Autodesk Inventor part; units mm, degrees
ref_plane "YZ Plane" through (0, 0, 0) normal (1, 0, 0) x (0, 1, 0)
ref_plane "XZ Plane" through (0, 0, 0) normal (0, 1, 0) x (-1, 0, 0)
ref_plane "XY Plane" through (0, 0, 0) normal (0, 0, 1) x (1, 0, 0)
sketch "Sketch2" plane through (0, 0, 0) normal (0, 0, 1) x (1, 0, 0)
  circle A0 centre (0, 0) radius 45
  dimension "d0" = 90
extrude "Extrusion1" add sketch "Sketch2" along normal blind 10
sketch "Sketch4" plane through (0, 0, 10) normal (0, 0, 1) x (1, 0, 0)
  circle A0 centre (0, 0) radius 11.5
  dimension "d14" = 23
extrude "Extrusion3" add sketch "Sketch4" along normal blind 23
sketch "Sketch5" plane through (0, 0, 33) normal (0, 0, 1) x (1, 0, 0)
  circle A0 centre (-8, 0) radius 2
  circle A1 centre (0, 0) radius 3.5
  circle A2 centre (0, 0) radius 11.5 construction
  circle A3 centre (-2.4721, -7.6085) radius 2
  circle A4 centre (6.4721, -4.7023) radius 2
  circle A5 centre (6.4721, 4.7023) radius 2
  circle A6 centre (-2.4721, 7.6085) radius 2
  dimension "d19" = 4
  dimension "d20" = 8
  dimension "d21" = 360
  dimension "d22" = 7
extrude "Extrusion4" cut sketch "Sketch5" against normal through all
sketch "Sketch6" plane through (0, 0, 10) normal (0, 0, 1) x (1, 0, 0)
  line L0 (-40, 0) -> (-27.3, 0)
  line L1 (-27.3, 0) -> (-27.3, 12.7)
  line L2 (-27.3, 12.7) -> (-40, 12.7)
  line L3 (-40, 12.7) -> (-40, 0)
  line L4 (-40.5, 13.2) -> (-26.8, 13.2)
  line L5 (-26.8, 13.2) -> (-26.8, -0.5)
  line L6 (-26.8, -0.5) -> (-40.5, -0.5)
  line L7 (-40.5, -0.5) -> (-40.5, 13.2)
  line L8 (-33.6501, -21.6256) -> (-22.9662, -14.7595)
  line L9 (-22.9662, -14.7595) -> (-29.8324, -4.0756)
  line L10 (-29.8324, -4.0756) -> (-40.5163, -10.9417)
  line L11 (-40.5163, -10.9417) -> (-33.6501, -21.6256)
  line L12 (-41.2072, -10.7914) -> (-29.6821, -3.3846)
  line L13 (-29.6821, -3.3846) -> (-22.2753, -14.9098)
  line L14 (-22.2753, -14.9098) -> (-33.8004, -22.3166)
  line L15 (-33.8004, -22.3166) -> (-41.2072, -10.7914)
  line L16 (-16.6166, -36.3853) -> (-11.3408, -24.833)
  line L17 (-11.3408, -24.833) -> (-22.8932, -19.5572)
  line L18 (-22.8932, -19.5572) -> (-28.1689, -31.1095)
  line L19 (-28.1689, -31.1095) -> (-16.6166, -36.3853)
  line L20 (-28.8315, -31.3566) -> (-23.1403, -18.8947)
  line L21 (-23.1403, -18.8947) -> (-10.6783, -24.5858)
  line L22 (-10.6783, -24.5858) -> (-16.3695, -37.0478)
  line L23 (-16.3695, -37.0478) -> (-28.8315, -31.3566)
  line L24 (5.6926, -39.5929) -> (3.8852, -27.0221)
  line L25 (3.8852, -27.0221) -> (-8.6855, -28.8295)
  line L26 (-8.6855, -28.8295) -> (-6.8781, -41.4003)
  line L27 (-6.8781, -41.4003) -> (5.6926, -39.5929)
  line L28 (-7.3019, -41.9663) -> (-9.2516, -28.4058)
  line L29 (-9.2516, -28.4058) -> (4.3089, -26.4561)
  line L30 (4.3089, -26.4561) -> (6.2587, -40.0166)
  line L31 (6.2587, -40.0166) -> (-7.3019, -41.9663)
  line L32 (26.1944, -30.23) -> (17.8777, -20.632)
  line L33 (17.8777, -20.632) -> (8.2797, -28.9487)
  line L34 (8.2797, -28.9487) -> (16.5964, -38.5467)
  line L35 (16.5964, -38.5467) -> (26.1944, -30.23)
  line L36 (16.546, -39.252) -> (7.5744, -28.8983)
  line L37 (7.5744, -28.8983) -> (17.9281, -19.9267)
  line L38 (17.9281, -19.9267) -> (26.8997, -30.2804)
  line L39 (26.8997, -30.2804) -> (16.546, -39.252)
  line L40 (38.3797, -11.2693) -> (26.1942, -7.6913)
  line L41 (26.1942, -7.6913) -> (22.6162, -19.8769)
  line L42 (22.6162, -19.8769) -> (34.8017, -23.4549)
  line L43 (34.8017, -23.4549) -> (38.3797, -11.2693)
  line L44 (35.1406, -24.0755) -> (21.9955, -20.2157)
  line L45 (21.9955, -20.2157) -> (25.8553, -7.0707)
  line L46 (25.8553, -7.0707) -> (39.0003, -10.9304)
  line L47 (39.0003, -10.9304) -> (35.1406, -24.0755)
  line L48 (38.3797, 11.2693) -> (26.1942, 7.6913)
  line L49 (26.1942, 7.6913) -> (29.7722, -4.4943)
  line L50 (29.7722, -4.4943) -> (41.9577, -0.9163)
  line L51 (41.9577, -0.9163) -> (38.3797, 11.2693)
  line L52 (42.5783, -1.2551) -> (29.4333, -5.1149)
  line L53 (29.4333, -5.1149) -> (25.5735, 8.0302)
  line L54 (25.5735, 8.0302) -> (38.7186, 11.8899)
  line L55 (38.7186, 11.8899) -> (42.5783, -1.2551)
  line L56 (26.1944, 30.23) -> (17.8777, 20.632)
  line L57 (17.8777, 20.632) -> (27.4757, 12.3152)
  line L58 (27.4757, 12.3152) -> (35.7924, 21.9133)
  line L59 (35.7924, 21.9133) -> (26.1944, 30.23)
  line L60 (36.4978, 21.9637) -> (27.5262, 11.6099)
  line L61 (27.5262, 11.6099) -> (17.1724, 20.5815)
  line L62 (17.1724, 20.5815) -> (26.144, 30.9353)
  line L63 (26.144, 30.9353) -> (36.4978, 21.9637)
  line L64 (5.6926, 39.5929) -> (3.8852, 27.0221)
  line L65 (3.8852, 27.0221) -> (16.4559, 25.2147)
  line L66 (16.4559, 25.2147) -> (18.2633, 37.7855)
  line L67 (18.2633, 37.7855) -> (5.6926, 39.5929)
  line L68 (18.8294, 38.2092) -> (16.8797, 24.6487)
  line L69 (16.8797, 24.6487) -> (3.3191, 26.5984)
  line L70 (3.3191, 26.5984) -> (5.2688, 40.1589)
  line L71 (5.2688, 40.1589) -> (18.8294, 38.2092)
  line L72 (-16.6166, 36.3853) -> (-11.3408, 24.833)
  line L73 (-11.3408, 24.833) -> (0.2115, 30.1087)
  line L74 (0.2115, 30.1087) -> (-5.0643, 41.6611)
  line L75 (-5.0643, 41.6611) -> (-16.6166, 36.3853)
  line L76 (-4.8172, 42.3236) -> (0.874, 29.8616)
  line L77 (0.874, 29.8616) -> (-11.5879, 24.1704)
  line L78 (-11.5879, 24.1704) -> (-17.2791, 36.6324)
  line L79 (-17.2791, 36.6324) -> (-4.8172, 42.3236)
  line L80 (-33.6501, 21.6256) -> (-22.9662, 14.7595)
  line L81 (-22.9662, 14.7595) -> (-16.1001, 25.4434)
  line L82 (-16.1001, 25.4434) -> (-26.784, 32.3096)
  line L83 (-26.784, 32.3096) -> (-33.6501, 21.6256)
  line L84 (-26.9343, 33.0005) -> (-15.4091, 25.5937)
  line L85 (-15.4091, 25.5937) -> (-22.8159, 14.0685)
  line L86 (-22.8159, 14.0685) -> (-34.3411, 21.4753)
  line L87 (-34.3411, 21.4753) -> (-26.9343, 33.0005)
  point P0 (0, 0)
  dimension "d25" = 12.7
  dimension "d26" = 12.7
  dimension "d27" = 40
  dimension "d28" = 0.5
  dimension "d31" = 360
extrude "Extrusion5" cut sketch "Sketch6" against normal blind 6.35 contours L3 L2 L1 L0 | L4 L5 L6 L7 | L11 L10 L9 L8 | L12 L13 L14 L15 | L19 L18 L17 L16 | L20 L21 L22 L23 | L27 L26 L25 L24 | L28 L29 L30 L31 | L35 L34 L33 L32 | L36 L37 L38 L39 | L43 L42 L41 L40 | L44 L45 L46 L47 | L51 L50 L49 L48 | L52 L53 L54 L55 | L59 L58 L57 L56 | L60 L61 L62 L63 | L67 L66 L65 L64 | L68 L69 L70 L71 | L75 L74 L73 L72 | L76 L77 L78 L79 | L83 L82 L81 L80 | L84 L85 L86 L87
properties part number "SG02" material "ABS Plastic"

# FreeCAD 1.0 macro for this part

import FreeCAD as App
import Part
import Sketcher
Q = App.Units.Quantity

doc = App.newDocument("Part")
body = doc.addObject("PartDesign::Body", "Body")

sketch1 = body.newObject("Sketcher::SketchObject", "Sketch")
sketch1.AttachmentSupport = (doc.getObject("XY_Plane"), [""])
sketch1.MapMode = "FlatFace"
sketch1.addGeometry(Part.Circle(App.Vector(0, 0, 0), App.Vector(0, 0, 1), 45), False)
sketch1.addConstraint(Sketcher.Constraint("Coincident", 0, 3, -1, 1))
sketch1.addConstraint(Sketcher.Constraint("Diameter", 0, Q("90 mm")))
pad1 = body.newObject("PartDesign::Pad", "Pad")
pad1.Profile = sketch1
pad1.Length = 10

sketch2 = body.newObject("Sketcher::SketchObject", "Sketch001")
sketch2.AttachmentSupport = (doc.getObject("XY_Plane"), [""])
sketch2.MapMode = "FlatFace"
sketch2.AttachmentOffset = App.Placement(App.Vector(0, 0, 10), App.Rotation())
sketch2.addGeometry(Part.Circle(App.Vector(0, 0, 0), App.Vector(0, 0, 1), 11.5), False)
sketch2.addConstraint(Sketcher.Constraint("Coincident", 0, 3, -1, 1))
sketch2.addConstraint(Sketcher.Constraint("Diameter", 0, Q("23 mm")))
pad2 = body.newObject("PartDesign::Pad", "Pad001")
pad2.Profile = sketch2
pad2.Length = 23

sketch3 = body.newObject("Sketcher::SketchObject", "Sketch002")
sketch3.AttachmentSupport = (doc.getObject("XY_Plane"), [""])
sketch3.MapMode = "FlatFace"
sketch3.AttachmentOffset = App.Placement(App.Vector(0, 0, 33), App.Rotation())
sketch3.addGeometry(Part.Circle(App.Vector(-8, 0, 0), App.Vector(0, 0, 1), 2), False)
sketch3.addGeometry(Part.Circle(App.Vector(0, 0, 0), App.Vector(0, 0, 1), 3.5), False)
sketch3.addGeometry(Part.Circle(App.Vector(-2.4721, -7.6085, 0), App.Vector(0, 0, 1), 2), False)
sketch3.addGeometry(Part.Circle(App.Vector(6.4721, -4.7023, 0), App.Vector(0, 0, 1), 2), False)
sketch3.addGeometry(Part.Circle(App.Vector(6.4721, 4.7023, 0), App.Vector(0, 0, 1), 2), False)
sketch3.addGeometry(Part.Circle(App.Vector(-2.4721, 7.6085, 0), App.Vector(0, 0, 1), 2), False)
sketch3.addConstraint(Sketcher.Constraint("Coincident", 1, 3, -1, 1))
sketch3.addConstraint(Sketcher.Constraint("Equal", 0, 2))
sketch3.addConstraint(Sketcher.Constraint("Equal", 2, 3))
sketch3.addConstraint(Sketcher.Constraint("Equal", 3, 4))
sketch3.addConstraint(Sketcher.Constraint("Equal", 4, 5))
sketch3.addConstraint(Sketcher.Constraint("Symmetric", 3, 3, 4, 3, -1))
sketch3.addConstraint(Sketcher.Constraint("Symmetric", 2, 3, 5, 3, -1))
sketch3.addConstraint(Sketcher.Constraint("PointOnObject", 0, 3, -1))
sketch3.addConstraint(Sketcher.Constraint("Diameter", 0, Q("4 mm")))
sketch3.addConstraint(Sketcher.Constraint("Diameter", 1, Q("7 mm")))
sketch3.addConstraint(Sketcher.Constraint("DistanceX", 0, 3, -1, 1, Q("8 mm")))
sketch3.addConstraint(Sketcher.Constraint("DistanceX", 2, 3, -1, 1, Q("2.472 mm")))
sketch3.addConstraint(Sketcher.Constraint("DistanceX", -1, 1, 3, 3, Q("6.472 mm")))
sketch3.addConstraint(Sketcher.Constraint("DistanceY", 2, 3, 5, 3, Q("15.217 mm")))
sketch3.addConstraint(Sketcher.Constraint("DistanceY", 3, 3, -1, 1, Q("4.7023 mm")))
pocket1 = body.newObject("PartDesign::Pocket", "Pocket")
pocket1.Profile = sketch3
pocket1.Type = "ThroughAll"

sketch4 = body.newObject("Sketcher::SketchObject", "Sketch003")
sketch4.AttachmentSupport = (doc.getObject("XY_Plane"), [""])
sketch4.MapMode = "FlatFace"
sketch4.AttachmentOffset = App.Placement(App.Vector(0, 0, 10), App.Rotation())
sketch4.addGeometry(Part.LineSegment(App.Vector(-26.8, 13.2, 0), App.Vector(-40.5, 13.2, 0)), False)
sketch4.addGeometry(Part.LineSegment(App.Vector(-40.5, 13.2, 0), App.Vector(-40.5, -0.5, 0)), False)
sketch4.addGeometry(Part.LineSegment(App.Vector(-40.5, -0.5, 0), App.Vector(-26.8, -0.5, 0)), False)
sketch4.addGeometry(Part.LineSegment(App.Vector(-26.8, -0.5, 0), App.Vector(-26.8, 13.2, 0)), False)
sketch4.addGeometry(Part.LineSegment(App.Vector(-29.6821, -3.3846, 0), App.Vector(-41.2072, -10.7914, 0)), False)
sketch4.addGeometry(Part.LineSegment(App.Vector(-41.2072, -10.7914, 0), App.Vector(-33.8004, -22.3166, 0)), False)
sketch4.addGeometry(Part.LineSegment(App.Vector(-33.8004, -22.3166, 0), App.Vector(-22.2753, -14.9098, 0)), False)
sketch4.addGeometry(Part.LineSegment(App.Vector(-22.2753, -14.9098, 0), App.Vector(-29.6821, -3.3846, 0)), False)
sketch4.addGeometry(Part.LineSegment(App.Vector(-23.1403, -18.8947, 0), App.Vector(-28.8315, -31.3566, 0)), False)
sketch4.addGeometry(Part.LineSegment(App.Vector(-28.8315, -31.3566, 0), App.Vector(-16.3695, -37.0478, 0)), False)
sketch4.addGeometry(Part.LineSegment(App.Vector(-16.3695, -37.0478, 0), App.Vector(-10.6783, -24.5858, 0)), False)
sketch4.addGeometry(Part.LineSegment(App.Vector(-10.6783, -24.5858, 0), App.Vector(-23.1403, -18.8947, 0)), False)
sketch4.addGeometry(Part.LineSegment(App.Vector(-9.2516, -28.4058, 0), App.Vector(-7.3019, -41.9663, 0)), False)
sketch4.addGeometry(Part.LineSegment(App.Vector(-7.3019, -41.9663, 0), App.Vector(6.2587, -40.0166, 0)), False)
sketch4.addGeometry(Part.LineSegment(App.Vector(6.2587, -40.0166, 0), App.Vector(4.3089, -26.4561, 0)), False)
sketch4.addGeometry(Part.LineSegment(App.Vector(4.3089, -26.4561, 0), App.Vector(-9.2516, -28.4058, 0)), False)
sketch4.addGeometry(Part.LineSegment(App.Vector(7.5744, -28.8983, 0), App.Vector(16.546, -39.252, 0)), False)
sketch4.addGeometry(Part.LineSegment(App.Vector(16.546, -39.252, 0), App.Vector(26.8997, -30.2804, 0)), False)
sketch4.addGeometry(Part.LineSegment(App.Vector(26.8997, -30.2804, 0), App.Vector(17.9281, -19.9267, 0)), False)
sketch4.addGeometry(Part.LineSegment(App.Vector(17.9281, -19.9267, 0), App.Vector(7.5744, -28.8983, 0)), False)
sketch4.addGeometry(Part.LineSegment(App.Vector(21.9955, -20.2157, 0), App.Vector(35.1406, -24.0755, 0)), False)
sketch4.addGeometry(Part.LineSegment(App.Vector(35.1406, -24.0755, 0), App.Vector(39.0003, -10.9304, 0)), False)
sketch4.addGeometry(Part.LineSegment(App.Vector(39.0003, -10.9304, 0), App.Vector(25.8553, -7.0707, 0)), False)
sketch4.addGeometry(Part.LineSegment(App.Vector(25.8553, -7.0707, 0), App.Vector(21.9955, -20.2157, 0)), False)
sketch4.addGeometry(Part.LineSegment(App.Vector(29.4333, -5.1149, 0), App.Vector(42.5783, -1.2551, 0)), False)
sketch4.addGeometry(Part.LineSegment(App.Vector(42.5783, -1.2551, 0), App.Vector(38.7186, 11.8899, 0)), False)
sketch4.addGeometry(Part.LineSegment(App.Vector(38.7186, 11.8899, 0), App.Vector(25.5735, 8.0302, 0)), False)
sketch4.addGeometry(Part.LineSegment(App.Vector(25.5735, 8.0302, 0), App.Vector(29.4333, -5.1149, 0)), False)
sketch4.addGeometry(Part.LineSegment(App.Vector(27.5262, 11.6099, 0), App.Vector(36.4978, 21.9637, 0)), False)
sketch4.addGeometry(Part.LineSegment(App.Vector(36.4978, 21.9637, 0), App.Vector(26.144, 30.9353, 0)), False)
sketch4.addGeometry(Part.LineSegment(App.Vector(26.144, 30.9353, 0), App.Vector(17.1724, 20.5815, 0)), False)
sketch4.addGeometry(Part.LineSegment(App.Vector(17.1724, 20.5815, 0), App.Vector(27.5262, 11.6099, 0)), False)
sketch4.addGeometry(Part.LineSegment(App.Vector(16.8797, 24.6487, 0), App.Vector(18.8294, 38.2092, 0)), False)
sketch4.addGeometry(Part.LineSegment(App.Vector(18.8294, 38.2092, 0), App.Vector(5.2688, 40.1589, 0)), False)
sketch4.addGeometry(Part.LineSegment(App.Vector(5.2688, 40.1589, 0), App.Vector(3.3191, 26.5984, 0)), False)
sketch4.addGeometry(Part.LineSegment(App.Vector(3.3191, 26.5984, 0), App.Vector(16.8797, 24.6487, 0)), False)
sketch4.addGeometry(Part.LineSegment(App.Vector(0.874, 29.8616, 0), App.Vector(-4.8172, 42.3236, 0)), False)
sketch4.addGeometry(Part.LineSegment(App.Vector(-4.8172, 42.3236, 0), App.Vector(-17.2791, 36.6324, 0)), False)
sketch4.addGeometry(Part.LineSegment(App.Vector(-17.2791, 36.6324, 0), App.Vector(-11.5879, 24.1704, 0)), False)
sketch4.addGeometry(Part.LineSegment(App.Vector(-11.5879, 24.1704, 0), App.Vector(0.874, 29.8616, 0)), False)
sketch4.addGeometry(Part.LineSegment(App.Vector(-15.4091, 25.5937, 0), App.Vector(-26.9343, 33.0005, 0)), False)
sketch4.addGeometry(Part.LineSegment(App.Vector(-26.9343, 33.0005, 0), App.Vector(-34.3411, 21.4753, 0)), False)
sketch4.addGeometry(Part.LineSegment(App.Vector(-34.3411, 21.4753, 0), App.Vector(-22.8159, 14.0685, 0)), False)
sketch4.addGeometry(Part.LineSegment(App.Vector(-22.8159, 14.0685, 0), App.Vector(-15.4091, 25.5937, 0)), False)
sketch4.addConstraint(Sketcher.Constraint("Coincident", 0, 2, 1, 1))
sketch4.addConstraint(Sketcher.Constraint("Coincident", 1, 2, 2, 1))
sketch4.addConstraint(Sketcher.Constraint("Coincident", 2, 2, 3, 1))
sketch4.addConstraint(Sketcher.Constraint("Coincident", 3, 2, 0, 1))
sketch4.addConstraint(Sketcher.Constraint("Coincident", 4, 2, 5, 1))
sketch4.addConstraint(Sketcher.Constraint("Coincident", 5, 2, 6, 1))
sketch4.addConstraint(Sketcher.Constraint("Coincident", 6, 2, 7, 1))
sketch4.addConstraint(Sketcher.Constraint("Coincident", 7, 2, 4, 1))
sketch4.addConstraint(Sketcher.Constraint("Coincident", 8, 2, 9, 1))
sketch4.addConstraint(Sketcher.Constraint("Coincident", 9, 2, 10, 1))
sketch4.addConstraint(Sketcher.Constraint("Coincident", 10, 2, 11, 1))
sketch4.addConstraint(Sketcher.Constraint("Coincident", 11, 2, 8, 1))
sketch4.addConstraint(Sketcher.Constraint("Coincident", 12, 2, 13, 1))
sketch4.addConstraint(Sketcher.Constraint("Coincident", 13, 2, 14, 1))
sketch4.addConstraint(Sketcher.Constraint("Coincident", 14, 2, 15, 1))
sketch4.addConstraint(Sketcher.Constraint("Coincident", 15, 2, 12, 1))
sketch4.addConstraint(Sketcher.Constraint("Coincident", 16, 2, 17, 1))
sketch4.addConstraint(Sketcher.Constraint("Coincident", 17, 2, 18, 1))
sketch4.addConstraint(Sketcher.Constraint("Coincident", 18, 2, 19, 1))
sketch4.addConstraint(Sketcher.Constraint("Coincident", 19, 2, 16, 1))
sketch4.addConstraint(Sketcher.Constraint("Coincident", 20, 2, 21, 1))
sketch4.addConstraint(Sketcher.Constraint("Coincident", 21, 2, 22, 1))
sketch4.addConstraint(Sketcher.Constraint("Coincident", 22, 2, 23, 1))
sketch4.addConstraint(Sketcher.Constraint("Coincident", 23, 2, 20, 1))
sketch4.addConstraint(Sketcher.Constraint("Coincident", 24, 2, 25, 1))
sketch4.addConstraint(Sketcher.Constraint("Coincident", 25, 2, 26, 1))
sketch4.addConstraint(Sketcher.Constraint("Coincident", 26, 2, 27, 1))
sketch4.addConstraint(Sketcher.Constraint("Coincident", 27, 2, 24, 1))
sketch4.addConstraint(Sketcher.Constraint("Coincident", 28, 2, 29, 1))
sketch4.addConstraint(Sketcher.Constraint("Coincident", 29, 2, 30, 1))
sketch4.addConstraint(Sketcher.Constraint("Coincident", 30, 2, 31, 1))
sketch4.addConstraint(Sketcher.Constraint("Coincident", 31, 2, 28, 1))
sketch4.addConstraint(Sketcher.Constraint("Coincident", 32, 2, 33, 1))
sketch4.addConstraint(Sketcher.Constraint("Coincident", 33, 2, 34, 1))
sketch4.addConstraint(Sketcher.Constraint("Coincident", 34, 2, 35, 1))
sketch4.addConstraint(Sketcher.Constraint("Coincident", 35, 2, 32, 1))
sketch4.addConstraint(Sketcher.Constraint("Coincident", 36, 2, 37, 1))
sketch4.addConstraint(Sketcher.Constraint("Coincident", 37, 2, 38, 1))
sketch4.addConstraint(Sketcher.Constraint("Coincident", 38, 2, 39, 1))
sketch4.addConstraint(Sketcher.Constraint("Coincident", 39, 2, 36, 1))
sketch4.addConstraint(Sketcher.Constraint("Coincident", 40, 2, 41, 1))
sketch4.addConstraint(Sketcher.Constraint("Coincident", 41, 2, 42, 1))
sketch4.addConstraint(Sketcher.Constraint("Coincident", 42, 2, 43, 1))
sketch4.addConstraint(Sketcher.Constraint("Coincident", 43, 2, 40, 1))
sketch4.addConstraint(Sketcher.Constraint("Horizontal", 0))
sketch4.addConstraint(Sketcher.Constraint("Vertical", 1))
sketch4.addConstraint(Sketcher.Constraint("Horizontal", 2))
sketch4.addConstraint(Sketcher.Constraint("Vertical", 3))
sketch4.addConstraint(Sketcher.Constraint("Perpendicular", 4, 5))
sketch4.addConstraint(Sketcher.Constraint("Perpendicular", 5, 6))
sketch4.addConstraint(Sketcher.Constraint("Perpendicular", 6, 7))
sketch4.addConstraint(Sketcher.Constraint("Perpendicular", 8, 9))
sketch4.addConstraint(Sketcher.Constraint("Perpendicular", 9, 10))
sketch4.addConstraint(Sketcher.Constraint("Perpendicular", 10, 11))
sketch4.addConstraint(Sketcher.Constraint("Perpendicular", 12, 13))
sketch4.addConstraint(Sketcher.Constraint("Perpendicular", 13, 14))
sketch4.addConstraint(Sketcher.Constraint("Perpendicular", 14, 15))
sketch4.addConstraint(Sketcher.Constraint("Perpendicular", 16, 17))
sketch4.addConstraint(Sketcher.Constraint("Perpendicular", 17, 18))
sketch4.addConstraint(Sketcher.Constraint("Perpendicular", 18, 19))
sketch4.addConstraint(Sketcher.Constraint("Perpendicular", 20, 21))
sketch4.addConstraint(Sketcher.Constraint("Perpendicular", 21, 22))
sketch4.addConstraint(Sketcher.Constraint("Perpendicular", 22, 23))
sketch4.addConstraint(Sketcher.Constraint("Perpendicular", 24, 25))
sketch4.addConstraint(Sketcher.Constraint("Perpendicular", 25, 26))
sketch4.addConstraint(Sketcher.Constraint("Perpendicular", 26, 27))
sketch4.addConstraint(Sketcher.Constraint("Perpendicular", 28, 29))
sketch4.addConstraint(Sketcher.Constraint("Perpendicular", 29, 30))
sketch4.addConstraint(Sketcher.Constraint("Perpendicular", 30, 31))
sketch4.addConstraint(Sketcher.Constraint("Perpendicular", 32, 33))
sketch4.addConstraint(Sketcher.Constraint("Perpendicular", 33, 34))
sketch4.addConstraint(Sketcher.Constraint("Perpendicular", 34, 35))
sketch4.addConstraint(Sketcher.Constraint("Perpendicular", 36, 37))
sketch4.addConstraint(Sketcher.Constraint("Perpendicular", 37, 38))
sketch4.addConstraint(Sketcher.Constraint("Perpendicular", 38, 39))
sketch4.addConstraint(Sketcher.Constraint("Perpendicular", 40, 41))
sketch4.addConstraint(Sketcher.Constraint("Perpendicular", 41, 42))
sketch4.addConstraint(Sketcher.Constraint("Perpendicular", 42, 43))
sketch4.addConstraint(Sketcher.Constraint("Equal", 2, 1))
sketch4.addConstraint(Sketcher.Constraint("Equal", 4, 5))
sketch4.addConstraint(Sketcher.Constraint("Equal", 7, 8))
sketch4.addConstraint(Sketcher.Constraint("Equal", 8, 9))
sketch4.addConstraint(Sketcher.Constraint("Equal", 11, 12))
sketch4.addConstraint(Sketcher.Constraint("Equal", 12, 13))
sketch4.addConstraint(Sketcher.Constraint("Equal", 15, 16))
sketch4.addConstraint(Sketcher.Constraint("Equal", 16, 17))
sketch4.addConstraint(Sketcher.Constraint("Equal", 19, 20))
sketch4.addConstraint(Sketcher.Constraint("Equal", 20, 21))
sketch4.addConstraint(Sketcher.Constraint("Equal", 23, 24))
sketch4.addConstraint(Sketcher.Constraint("Equal", 24, 25))
sketch4.addConstraint(Sketcher.Constraint("Equal", 27, 28))
sketch4.addConstraint(Sketcher.Constraint("Equal", 28, 29))
sketch4.addConstraint(Sketcher.Constraint("Equal", 31, 32))
sketch4.addConstraint(Sketcher.Constraint("Equal", 32, 33))
sketch4.addConstraint(Sketcher.Constraint("Equal", 35, 36))
sketch4.addConstraint(Sketcher.Constraint("Equal", 36, 37))
sketch4.addConstraint(Sketcher.Constraint("Equal", 39, 40))
sketch4.addConstraint(Sketcher.Constraint("Equal", 40, 41))
sketch4.addConstraint(Sketcher.Constraint("DistanceY", 1, 2, -1, 1, Q("0.5 mm")))
sketch4.addConstraint(Sketcher.Constraint("DistanceX", 0, 2, 0, 1, Q("13.7 mm")))
sketch4.addConstraint(Sketcher.Constraint("Distance", 4, Q("13.7 mm")))
sketch4.addConstraint(Sketcher.Constraint("DistanceX", 0, 2, -1, 1, Q("40.5 mm")))
sketch4.addConstraint(Sketcher.Constraint("Angle", 16, Q("-49.0907 deg")))
sketch4.addConstraint(Sketcher.Constraint("Angle", 28, Q("49.091 deg")))
sketch4.addConstraint(Sketcher.Constraint("DistanceY", -1, 1, 25, 2, Q("11.89 mm")))
sketch4.addConstraint(Sketcher.Constraint("DistanceY", -1, 1, 31, 2, Q("11.61 mm")))
sketch4.addConstraint(Sketcher.Constraint("DistanceY", 8, 2, 5, 2, Q("9.04 mm")))
sketch4.addConstraint(Sketcher.Constraint("DistanceX", 5, 2, 11, 2, Q("10.66 mm")))
sketch4.addConstraint(Sketcher.Constraint("DistanceY", 11, 2, 7, 2, Q("15.51 mm")))
sketch4.addConstraint(Sketcher.Constraint("DistanceY", 13, 2, 8, 2, Q("8.66 mm")))
sketch4.addConstraint(Sketcher.Constraint("DistanceY", 15, 2, 10, 2, Q("3.82 mm")))
sketch4.addConstraint(Sketcher.Constraint("DistanceY", 13, 2, 18, 2, Q("20.09 mm")))
sketch4.addConstraint(Sketcher.Constraint("DistanceY", 17, 2, 21, 2, Q("19.35 mm")))
sketch4.addConstraint(Sketcher.Constraint("DistanceY", 38, 2, 40, 2, Q("8.83 mm")))
sketch4.addConstraint(Sketcher.Constraint("DistanceX", 37, 2, 43, 2, Q("1.87 mm")))
sketch4.addConstraint(Sketcher.Constraint("DistanceX", 7, 2, -1, 1, Q("29.682 mm")))
sketch4.addConstraint(Sketcher.Constraint("DistanceX", 12, 2, -1, 1, Q("7.302 mm")))
sketch4.addConstraint(Sketcher.Constraint("DistanceX", -1, 1, 14, 2, Q("4.309 mm")))
sketch4.addConstraint(Sketcher.Constraint("DistanceY", 14, 2, -1, 1, Q("26.456 mm")))
sketch4.addConstraint(Sketcher.Constraint("DistanceX", -1, 1, 16, 2, Q("16.546 mm")))
sketch4.addConstraint(Sketcher.Constraint("DistanceY", 24, 2, -1, 1, Q("1.255 mm")))
sketch4.addConstraint(Sketcher.Constraint("DistanceX", -1, 1, 29, 2, Q("26.144 mm")))
sketch4.addConstraint(Sketcher.Constraint("DistanceY", -1, 1, 33, 2, Q("40.159 mm")))
sketch4.addConstraint(Sketcher.Constraint("DistanceX", -1, 1, 34, 2, Q("3.319 mm")))
sketch4.addConstraint(Sketcher.Constraint("DistanceX", 37, 2, -1, 1, Q("17.279 mm")))
sketch4.addConstraint(Sketcher.Constraint("DistanceX", 38, 2, -1, 1, Q("11.588 mm")))
sketch4.addConstraint(Sketcher.Constraint("DistanceX", 41, 2, -1, 1, Q("34.341 mm")))
sketch4.addConstraint(Sketcher.Constraint("DistanceX", 17, 2, 20, 2, Q("8.241 mm")))
sketch4.addConstraint(Sketcher.Constraint("DistanceY", 17, 2, 20, 2, Q("6.205 mm")))
sketch4.addConstraint(Sketcher.Constraint("DistanceX", 21, 2, 24, 2, Q("3.578 mm")))
sketch4.addConstraint(Sketcher.Constraint("DistanceY", 29, 2, 32, 2, Q("7.274 mm")))
sketch4.addConstraint(Sketcher.Constraint("DistanceY", 35, 2, 36, 2, Q("17.675 mm")))
pocket2 = body.newObject("PartDesign::Pocket", "Pocket001")
pocket2.Profile = sketch4
pocket2.Length = 6.35

doc.recompute()
